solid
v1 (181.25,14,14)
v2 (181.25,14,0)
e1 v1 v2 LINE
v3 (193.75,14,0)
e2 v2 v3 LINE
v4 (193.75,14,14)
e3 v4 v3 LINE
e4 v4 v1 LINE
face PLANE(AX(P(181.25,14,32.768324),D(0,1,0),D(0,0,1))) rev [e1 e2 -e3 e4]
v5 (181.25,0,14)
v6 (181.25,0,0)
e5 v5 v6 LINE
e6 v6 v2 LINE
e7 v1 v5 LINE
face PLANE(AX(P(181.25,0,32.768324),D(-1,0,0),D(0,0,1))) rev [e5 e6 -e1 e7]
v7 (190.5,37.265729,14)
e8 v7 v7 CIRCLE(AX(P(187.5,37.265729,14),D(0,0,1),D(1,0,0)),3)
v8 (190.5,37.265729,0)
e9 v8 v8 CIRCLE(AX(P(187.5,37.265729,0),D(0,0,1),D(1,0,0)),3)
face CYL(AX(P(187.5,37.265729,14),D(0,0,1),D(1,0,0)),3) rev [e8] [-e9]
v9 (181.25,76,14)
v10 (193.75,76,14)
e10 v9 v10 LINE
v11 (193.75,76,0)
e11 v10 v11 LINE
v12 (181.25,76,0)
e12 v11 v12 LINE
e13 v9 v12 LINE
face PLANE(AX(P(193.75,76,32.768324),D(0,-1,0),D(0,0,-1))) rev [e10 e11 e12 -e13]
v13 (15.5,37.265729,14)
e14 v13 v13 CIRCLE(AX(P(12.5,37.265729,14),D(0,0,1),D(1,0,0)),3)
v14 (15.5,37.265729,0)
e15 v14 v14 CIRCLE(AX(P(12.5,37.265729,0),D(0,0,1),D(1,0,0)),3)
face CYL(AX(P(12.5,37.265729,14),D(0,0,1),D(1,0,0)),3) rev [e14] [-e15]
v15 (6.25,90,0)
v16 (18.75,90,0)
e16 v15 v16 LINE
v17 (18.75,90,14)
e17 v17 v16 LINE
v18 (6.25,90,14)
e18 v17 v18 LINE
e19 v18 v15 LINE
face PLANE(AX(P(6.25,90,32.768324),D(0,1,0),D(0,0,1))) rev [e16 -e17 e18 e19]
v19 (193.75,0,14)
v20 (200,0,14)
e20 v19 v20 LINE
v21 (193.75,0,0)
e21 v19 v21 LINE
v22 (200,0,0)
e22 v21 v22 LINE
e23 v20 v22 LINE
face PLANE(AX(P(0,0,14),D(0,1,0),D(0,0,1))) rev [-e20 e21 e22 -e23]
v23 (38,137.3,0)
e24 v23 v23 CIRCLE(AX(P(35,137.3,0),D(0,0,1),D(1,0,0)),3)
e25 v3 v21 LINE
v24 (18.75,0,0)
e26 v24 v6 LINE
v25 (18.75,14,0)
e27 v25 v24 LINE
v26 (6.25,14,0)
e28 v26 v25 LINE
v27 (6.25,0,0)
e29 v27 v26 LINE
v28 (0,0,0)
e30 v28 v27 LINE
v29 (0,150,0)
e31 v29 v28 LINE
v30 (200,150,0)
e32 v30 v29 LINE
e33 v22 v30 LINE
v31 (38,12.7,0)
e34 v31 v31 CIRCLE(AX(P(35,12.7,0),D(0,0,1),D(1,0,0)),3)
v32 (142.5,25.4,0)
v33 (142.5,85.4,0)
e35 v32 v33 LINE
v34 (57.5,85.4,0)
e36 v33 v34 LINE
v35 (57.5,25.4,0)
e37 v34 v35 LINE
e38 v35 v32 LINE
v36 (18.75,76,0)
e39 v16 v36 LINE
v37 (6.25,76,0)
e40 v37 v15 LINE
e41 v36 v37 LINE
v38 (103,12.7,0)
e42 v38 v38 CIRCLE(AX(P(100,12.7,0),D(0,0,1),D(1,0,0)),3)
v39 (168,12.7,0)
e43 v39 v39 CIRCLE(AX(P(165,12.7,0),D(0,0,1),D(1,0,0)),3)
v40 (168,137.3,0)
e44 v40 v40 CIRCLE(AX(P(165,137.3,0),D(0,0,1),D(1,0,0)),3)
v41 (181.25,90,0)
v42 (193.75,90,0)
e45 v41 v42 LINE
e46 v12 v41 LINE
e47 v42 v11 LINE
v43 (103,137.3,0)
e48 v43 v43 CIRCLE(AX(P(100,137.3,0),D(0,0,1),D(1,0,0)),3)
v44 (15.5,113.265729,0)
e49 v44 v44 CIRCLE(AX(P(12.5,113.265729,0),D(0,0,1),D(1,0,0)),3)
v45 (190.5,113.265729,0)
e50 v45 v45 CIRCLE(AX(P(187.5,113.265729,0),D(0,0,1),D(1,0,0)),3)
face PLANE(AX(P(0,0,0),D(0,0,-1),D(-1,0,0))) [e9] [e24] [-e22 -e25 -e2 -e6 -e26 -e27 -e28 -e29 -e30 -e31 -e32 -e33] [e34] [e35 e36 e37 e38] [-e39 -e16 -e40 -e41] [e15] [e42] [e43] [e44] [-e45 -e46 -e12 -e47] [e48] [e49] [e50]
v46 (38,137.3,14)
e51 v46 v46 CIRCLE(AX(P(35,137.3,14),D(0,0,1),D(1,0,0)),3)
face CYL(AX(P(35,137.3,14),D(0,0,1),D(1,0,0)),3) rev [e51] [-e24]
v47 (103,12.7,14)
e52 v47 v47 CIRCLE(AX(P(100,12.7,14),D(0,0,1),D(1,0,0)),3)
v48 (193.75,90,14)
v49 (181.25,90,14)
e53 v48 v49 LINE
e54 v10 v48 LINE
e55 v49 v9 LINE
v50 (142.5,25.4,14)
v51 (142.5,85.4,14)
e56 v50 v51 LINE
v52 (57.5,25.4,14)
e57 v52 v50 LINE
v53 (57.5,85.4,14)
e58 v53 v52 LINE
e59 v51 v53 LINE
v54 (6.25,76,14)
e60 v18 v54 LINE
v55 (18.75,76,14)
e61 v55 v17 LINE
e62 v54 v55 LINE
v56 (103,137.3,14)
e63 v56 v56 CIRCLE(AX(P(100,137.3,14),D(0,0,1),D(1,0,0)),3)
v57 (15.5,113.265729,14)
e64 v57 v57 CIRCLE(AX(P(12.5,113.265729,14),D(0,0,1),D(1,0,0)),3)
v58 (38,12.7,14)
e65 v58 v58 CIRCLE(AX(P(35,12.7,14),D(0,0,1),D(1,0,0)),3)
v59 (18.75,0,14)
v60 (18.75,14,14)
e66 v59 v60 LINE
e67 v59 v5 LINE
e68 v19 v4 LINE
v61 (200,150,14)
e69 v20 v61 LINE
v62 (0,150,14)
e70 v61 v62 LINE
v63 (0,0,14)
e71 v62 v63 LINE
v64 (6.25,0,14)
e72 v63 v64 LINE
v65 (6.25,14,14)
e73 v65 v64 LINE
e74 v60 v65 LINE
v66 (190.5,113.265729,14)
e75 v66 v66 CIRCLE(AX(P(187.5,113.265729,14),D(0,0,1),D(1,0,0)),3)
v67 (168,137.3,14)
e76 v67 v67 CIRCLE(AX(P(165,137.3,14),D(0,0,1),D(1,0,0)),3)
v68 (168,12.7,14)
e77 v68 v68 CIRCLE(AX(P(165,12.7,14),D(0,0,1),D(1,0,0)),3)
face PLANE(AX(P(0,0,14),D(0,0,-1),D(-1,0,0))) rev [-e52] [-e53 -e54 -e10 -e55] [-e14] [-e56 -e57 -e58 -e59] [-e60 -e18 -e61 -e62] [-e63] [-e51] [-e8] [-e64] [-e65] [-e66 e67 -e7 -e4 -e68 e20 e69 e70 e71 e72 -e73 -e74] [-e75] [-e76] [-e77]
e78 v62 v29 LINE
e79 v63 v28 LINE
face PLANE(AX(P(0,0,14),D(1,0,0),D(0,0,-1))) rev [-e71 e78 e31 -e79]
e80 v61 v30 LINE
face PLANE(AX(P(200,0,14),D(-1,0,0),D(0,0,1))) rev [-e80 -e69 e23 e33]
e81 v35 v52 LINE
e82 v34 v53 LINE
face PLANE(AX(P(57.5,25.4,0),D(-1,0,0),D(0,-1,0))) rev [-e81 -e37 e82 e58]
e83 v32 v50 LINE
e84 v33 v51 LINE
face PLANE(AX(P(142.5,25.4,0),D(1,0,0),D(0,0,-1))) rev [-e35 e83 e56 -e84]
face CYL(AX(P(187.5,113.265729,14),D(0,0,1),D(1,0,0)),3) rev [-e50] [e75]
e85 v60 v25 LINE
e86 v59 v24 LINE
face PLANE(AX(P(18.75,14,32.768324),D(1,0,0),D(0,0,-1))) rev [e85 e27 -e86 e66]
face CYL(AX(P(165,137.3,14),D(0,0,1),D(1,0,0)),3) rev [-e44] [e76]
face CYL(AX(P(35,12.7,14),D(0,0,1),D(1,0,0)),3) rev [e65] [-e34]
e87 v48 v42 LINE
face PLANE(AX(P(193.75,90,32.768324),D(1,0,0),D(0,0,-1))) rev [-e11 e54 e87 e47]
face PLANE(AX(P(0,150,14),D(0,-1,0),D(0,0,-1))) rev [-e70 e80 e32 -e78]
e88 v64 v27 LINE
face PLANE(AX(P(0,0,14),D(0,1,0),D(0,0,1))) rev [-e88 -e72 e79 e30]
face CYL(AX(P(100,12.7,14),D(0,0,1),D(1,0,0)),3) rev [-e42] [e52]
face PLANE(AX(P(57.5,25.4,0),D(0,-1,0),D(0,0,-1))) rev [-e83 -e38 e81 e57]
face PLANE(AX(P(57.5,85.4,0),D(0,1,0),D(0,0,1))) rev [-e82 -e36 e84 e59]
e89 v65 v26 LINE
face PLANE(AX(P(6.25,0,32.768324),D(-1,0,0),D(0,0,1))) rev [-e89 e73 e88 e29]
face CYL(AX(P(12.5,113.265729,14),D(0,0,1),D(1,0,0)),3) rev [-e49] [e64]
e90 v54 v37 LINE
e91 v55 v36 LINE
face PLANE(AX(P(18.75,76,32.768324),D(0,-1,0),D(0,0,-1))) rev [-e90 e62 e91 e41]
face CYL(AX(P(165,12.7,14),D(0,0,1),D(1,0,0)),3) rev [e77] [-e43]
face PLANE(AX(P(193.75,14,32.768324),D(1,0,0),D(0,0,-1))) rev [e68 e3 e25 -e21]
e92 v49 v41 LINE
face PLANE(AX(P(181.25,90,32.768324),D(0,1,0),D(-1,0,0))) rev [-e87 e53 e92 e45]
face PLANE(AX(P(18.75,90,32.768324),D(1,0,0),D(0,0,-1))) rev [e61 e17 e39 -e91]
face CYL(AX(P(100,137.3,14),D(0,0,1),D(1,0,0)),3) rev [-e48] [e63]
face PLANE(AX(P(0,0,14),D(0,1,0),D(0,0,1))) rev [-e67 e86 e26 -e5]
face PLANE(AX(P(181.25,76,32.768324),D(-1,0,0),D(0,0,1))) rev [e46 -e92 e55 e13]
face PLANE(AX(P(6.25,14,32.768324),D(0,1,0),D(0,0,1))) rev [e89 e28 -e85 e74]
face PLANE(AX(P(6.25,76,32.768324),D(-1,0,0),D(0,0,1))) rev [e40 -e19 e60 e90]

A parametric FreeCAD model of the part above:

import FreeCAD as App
import Part
import Sketcher
from FreeCAD import Vector

doc = App.newDocument("Part")
body = doc.addObject("PartDesign::Body", "Body")

# Sketch on XY plane
sketch1 = doc.addObject("Sketcher::SketchObject", "Sketch")
body.addObject(sketch1)
sketch1.AttachmentSupport = (doc.XY_Plane, [""])
sketch1.MapMode = "FlatFace"
sketch1.addGeometry(Part.LineSegment(Vector(0, 150, 0), Vector(0, 0, 0)), False)
sketch1.addGeometry(Part.LineSegment(Vector(0, 0, 0), Vector(200, 0, 0)), False)
sketch1.addGeometry(Part.LineSegment(Vector(200, 0, 0), Vector(200, 150, 0)), False)
sketch1.addGeometry(Part.LineSegment(Vector(200, 150, 0), Vector(0, 150, 0)), False)
sketch1.addConstraint(Sketcher.Constraint("Coincident", 0, 2, 1, 1))
sketch1.addConstraint(Sketcher.Constraint("Coincident", 1, 2, 2, 1))
sketch1.addConstraint(Sketcher.Constraint("Coincident", 2, 2, 3, 1))
sketch1.addConstraint(Sketcher.Constraint("Coincident", 3, 2, 0, 1))
sketch1.addConstraint(Sketcher.Constraint("Vertical", 0))
sketch1.addConstraint(Sketcher.Constraint("Horizontal", 1))
sketch1.addConstraint(Sketcher.Constraint("Vertical", 2))
sketch1.addConstraint(Sketcher.Constraint("Horizontal", 3))
sketch1.addConstraint(Sketcher.Constraint("Coincident", 0, 2, -1, 1))
sketch1.addConstraint(Sketcher.Constraint("DistanceX", 1, 1, 1, 2, 200.0))
sketch1.addConstraint(Sketcher.Constraint("DistanceY", 0, 2, 0, 1, 150.0))
pad1 = doc.addObject("PartDesign::Pad", "Pad")
body.addObject(pad1)
pad1.Profile = sketch1
pad1.Length = 14

# Sketch on XY plane
sketch2 = doc.addObject("Sketcher::SketchObject", "Sketch001")
body.addObject(sketch2)
sketch2.AttachmentSupport = (doc.XY_Plane, [""])
sketch2.MapMode = "FlatFace"
sketch2.addGeometry(Part.LineSegment(Vector(19, 14, 0), Vector(19, 0, 0)), False)
sketch2.addGeometry(Part.LineSegment(Vector(19, 0, 0), Vector(6, 0, 0)), False)
sketch2.addGeometry(Part.LineSegment(Vector(6, 0, 0), Vector(6, 14, 0)), False)
sketch2.addGeometry(Part.LineSegment(Vector(6, 14, 0), Vector(19, 14, 0)), False)
sketch2.addGeometry(Part.LineSegment(Vector(194, 14, 0), Vector(194, 0, 0)), False)
sketch2.addGeometry(Part.LineSegment(Vector(194, 0, 0), Vector(181, 0, 0)), False)
sketch2.addGeometry(Part.LineSegment(Vector(181, 0, 0), Vector(181, 14, 0)), False)
sketch2.addGeometry(Part.LineSegment(Vector(181, 14, 0), Vector(194, 14, 0)), False)
sketch2.addGeometry(Part.LineSegment(Vector(19, 90, 0), Vector(19, 76, 0)), False)
sketch2.addGeometry(Part.LineSegment(Vector(19, 76, 0), Vector(6, 76, 0)), False)
sketch2.addGeometry(Part.LineSegment(Vector(6, 76, 0), Vector(6, 90, 0)), False)
sketch2.addGeometry(Part.LineSegment(Vector(6, 90, 0), Vector(19, 90, 0)), False)
sketch2.addGeometry(Part.LineSegment(Vector(194, 90, 0), Vector(194, 76, 0)), False)
sketch2.addGeometry(Part.LineSegment(Vector(194, 76, 0), Vector(181, 76, 0)), False)
sketch2.addGeometry(Part.LineSegment(Vector(181, 76, 0), Vector(181, 90, 0)), False)
sketch2.addGeometry(Part.LineSegment(Vector(181, 90, 0), Vector(194, 90, 0)), False)
sketch2.addConstraint(Sketcher.Constraint("Coincident", 0, 2, 1, 1))
sketch2.addConstraint(Sketcher.Constraint("Coincident", 1, 2, 2, 1))
sketch2.addConstraint(Sketcher.Constraint("Coincident", 2, 2, 3, 1))
sketch2.addConstraint(Sketcher.Constraint("Coincident", 3, 2, 0, 1))
sketch2.addConstraint(Sketcher.Constraint("Coincident", 4, 2, 5, 1))
sketch2.addConstraint(Sketcher.Constraint("Coincident", 5, 2, 6, 1))
sketch2.addConstraint(Sketcher.Constraint("Coincident", 6, 2, 7, 1))
sketch2.addConstraint(Sketcher.Constraint("Coincident", 7, 2, 4, 1))
sketch2.addConstraint(Sketcher.Constraint("Coincident", 8, 2, 9, 1))
sketch2.addConstraint(Sketcher.Constraint("Coincident", 9, 2, 10, 1))
sketch2.addConstraint(Sketcher.Constraint("Coincident", 10, 2, 11, 1))
sketch2.addConstraint(Sketcher.Constraint("Coincident", 11, 2, 8, 1))
sketch2.addConstraint(Sketcher.Constraint("Coincident", 12, 2, 13, 1))
sketch2.addConstraint(Sketcher.Constraint("Coincident", 13, 2, 14, 1))
sketch2.addConstraint(Sketcher.Constraint("Coincident", 14, 2, 15, 1))
sketch2.addConstraint(Sketcher.Constraint("Coincident", 15, 2, 12, 1))
sketch2.addConstraint(Sketcher.Constraint("Vertical", 0))
sketch2.addConstraint(Sketcher.Constraint("Horizontal", 1))
sketch2.addConstraint(Sketcher.Constraint("Vertical", 2))
sketch2.addConstraint(Sketcher.Constraint("Horizontal", 3))
sketch2.addConstraint(Sketcher.Constraint("Vertical", 4))
sketch2.addConstraint(Sketcher.Constraint("Horizontal", 5))
sketch2.addConstraint(Sketcher.Constraint("Vertical", 6))
sketch2.addConstraint(Sketcher.Constraint("Horizontal", 7))
sketch2.addConstraint(Sketcher.Constraint("Vertical", 8))
sketch2.addConstraint(Sketcher.Constraint("Horizontal", 9))
sketch2.addConstraint(Sketcher.Constraint("Vertical", 10))
sketch2.addConstraint(Sketcher.Constraint("Horizontal", 11))
sketch2.addConstraint(Sketcher.Constraint("Vertical", 12))
sketch2.addConstraint(Sketcher.Constraint("Horizontal", 13))
sketch2.addConstraint(Sketcher.Constraint("Vertical", 14))
sketch2.addConstraint(Sketcher.Constraint("Horizontal", 15))
sketch2.addConstraint(Sketcher.Constraint("PointOnObject", 0, 2, -1))
sketch2.addConstraint(Sketcher.Constraint("PointOnObject", 4, 2, -1))
sketch2.addConstraint(Sketcher.Constraint("Horizontal", 3, 2, 6, 2))
sketch2.addConstraint(Sketcher.Constraint("Horizontal", 9, 2, 12, 2))
sketch2.addConstraint(Sketcher.Constraint("Horizontal", 11, 2, 14, 2))
sketch2.addConstraint(Sketcher.Constraint("Vertical", 3, 2, 8, 2))
sketch2.addConstraint(Sketcher.Constraint("Vertical", 2, 2, 9, 2))
sketch2.addConstraint(Sketcher.Constraint("Vertical", 7, 2, 12, 2))
sketch2.addConstraint(Sketcher.Constraint("Vertical", 6, 2, 13, 2))
sketch2.addConstraint(Sketcher.Constraint("Equal", 3, 5))
sketch2.addConstraint(Sketcher.Constraint("Equal", 6, 8))
sketch2.addConstraint(Sketcher.Constraint("DistanceY", 0, 2, 0, 1, 14.0))
sketch2.addConstraint(Sketcher.Constraint("DistanceX", 1, 2, 1, 1, 12.5))
sketch2.addConstraint(Sketcher.Constraint("DistanceY", -1, 1, 8, 2, 76.0))
sketch2.addConstraint(Sketcher.Constraint("DistanceX", 0, 2, 4, 2, 175.0))
sketch2.addConstraint(Sketcher.Constraint("DistanceX", -1, 1, 0, 2, 18.75))
pocket1 = doc.addObject("PartDesign::Pocket", "Pocket")
body.addObject(pocket1)
pocket1.Profile = sketch2
pocket1.Length = 14
pocket1.Reversed = True

# Sketch on XY plane
sketch3 = doc.addObject("Sketcher::SketchObject", "Sketch002")
body.addObject(sketch3)
sketch3.AttachmentSupport = (doc.XY_Plane, [""])
sketch3.MapMode = "FlatFace"
sketch3.AttachmentOffset = App.Placement(Vector(0, 0, 14), App.Rotation())
sketch3.addGeometry(Part.Circle(Vector(12.5, 113.3, 0), Vector(0, 0, 1), 3), False)
sketch3.addGeometry(Part.Circle(Vector(187.5, 113.3, 0), Vector(0, 0, 1), 3), False)
sketch3.addGeometry(Part.Circle(Vector(187.5, 37.3, 0), Vector(0, 0, 1), 3), False)
sketch3.addGeometry(Part.Circle(Vector(12.5, 37.3, 0), Vector(0, 0, 1), 3), False)
sketch3.addGeometry(Part.Circle(Vector(35, 137.3, 0), Vector(0, 0, 1), 3), False)
sketch3.addGeometry(Part.Circle(Vector(100, 137.3, 0), Vector(0, 0, 1), 3), False)
sketch3.addGeometry(Part.Circle(Vector(165, 137.3, 0), Vector(0, 0, 1), 3), False)
sketch3.addGeometry(Part.Circle(Vector(165, 12.7, 0), Vector(0, 0, 1), 3), False)
sketch3.addGeometry(Part.Circle(Vector(100, 12.7, 0), Vector(0, 0, 1), 3), False)
sketch3.addGeometry(Part.Circle(Vector(35, 12.7, 0), Vector(0, 0, 1), 3), False)
sketch3.addConstraint(Sketcher.Constraint("Equal", 0, 1))
sketch3.addConstraint(Sketcher.Constraint("Equal", 1, 2))
sketch3.addConstraint(Sketcher.Constraint("Equal", 2, 3))
sketch3.addConstraint(Sketcher.Constraint("Equal", 3, 4))
sketch3.addConstraint(Sketcher.Constraint("Equal", 4, 5))
sketch3.addConstraint(Sketcher.Constraint("Equal", 5, 6))
sketch3.addConstraint(Sketcher.Constraint("Equal", 6, 7))
sketch3.addConstraint(Sketcher.Constraint("Equal", 7, 8))
sketch3.addConstraint(Sketcher.Constraint("Equal", 8, 9))
sketch3.addConstraint(Sketcher.Constraint("Horizontal", 0, 3, 1, 3))
sketch3.addConstraint(Sketcher.Constraint("Horizontal", 2, 3, 3, 3))
sketch3.addConstraint(Sketcher.Constraint("Horizontal", 4, 3, 5, 3))
sketch3.addConstraint(Sketcher.Constraint("Horizontal", 5, 3, 6, 3))
sketch3.addConstraint(Sketcher.Constraint("Horizontal", 7, 3, 8, 3))
sketch3.addConstraint(Sketcher.Constraint("Horizontal", 8, 3, 9, 3))
sketch3.addConstraint(Sketcher.Constraint("Vertical", 1, 3, 2, 3))
sketch3.addConstraint(Sketcher.Constraint("Vertical", 0, 3, 3, 3))
sketch3.addConstraint(Sketcher.Constraint("Vertical", 6, 3, 7, 3))
sketch3.addConstraint(Sketcher.Constraint("Vertical", 5, 3, 8, 3))
sketch3.addConstraint(Sketcher.Constraint("Vertical", 4, 3, 9, 3))
sketch3.addConstraint(Sketcher.Constraint("Diameter", 0, 6.0))
sketch3.addConstraint(Sketcher.Constraint("DistanceX", -1, 1, 4, 3, 35.0))
sketch3.addConstraint(Sketcher.Constraint("DistanceX", -1, 1, 5, 3, 100.0))
sketch3.addConstraint(Sketcher.Constraint("DistanceX", -1, 1, 6, 3, 165.0))
sketch3.addConstraint(Sketcher.Constraint("DistanceX", 0, 3, 1, 3, 175.0))
sketch3.addConstraint(Sketcher.Constraint("DistanceY", 2, 3, 1, 3, 76.0))
sketch3.addConstraint(Sketcher.Constraint("DistanceX", -1, 1, 0, 3, 12.5))
sketch3.addConstraint(Sketcher.Constraint("DistanceY", -1, 1, 4, 3, 137.3))
sketch3.addConstraint(Sketcher.Constraint("DistanceY", -1, 1, 7, 3, 12.7))
sketch3.addConstraint(Sketcher.Constraint("DistanceY", -1, 1, 0, 3, 113.265729))
doc.recompute()
hole = doc.addObject("PartDesign::Hole", "Hole")
body.addObject(hole)
hole.Profile = sketch3
hole.ThreadType = "None"
hole.Diameter = 6
hole.DepthType = "ThroughAll"

# Sketch on XY plane
sketch4 = doc.addObject("Sketcher::SketchObject", "Sketch003")
body.addObject(sketch4)
sketch4.AttachmentSupport = (doc.XY_Plane, [""])
sketch4.MapMode = "FlatFace"
sketch4.AttachmentOffset = App.Placement(Vector(0, 0, 14), App.Rotation())
sketch4.addGeometry(Part.LineSegment(Vector(58, 85, 0), Vector(58, 25, 0)), False)
sketch4.addGeometry(Part.LineSegment(Vector(58, 25, 0), Vector(142, 25, 0)), False)
sketch4.addGeometry(Part.LineSegment(Vector(142, 25, 0), Vector(142, 85, 0)), False)
sketch4.addGeometry(Part.LineSegment(Vector(142, 85, 0), Vector(58, 85, 0)), False)
sketch4.addConstraint(Sketcher.Constraint("Coincident", 0, 2, 1, 1))
sketch4.addConstraint(Sketcher.Constraint("Coincident", 1, 2, 2, 1))
sketch4.addConstraint(Sketcher.Constraint("Coincident", 2, 2, 3, 1))
sketch4.addConstraint(Sketcher.Constraint("Coincident", 3, 2, 0, 1))
sketch4.addConstraint(Sketcher.Constraint("Vertical", 0))
sketch4.addConstraint(Sketcher.Constraint("Horizontal", 1))
sketch4.addConstraint(Sketcher.Constraint("Vertical", 2))
sketch4.addConstraint(Sketcher.Constraint("Horizontal", 3))
sketch4.addConstraint(Sketcher.Constraint("DistanceX", 1, 1, 1, 2, 85.0))
sketch4.addConstraint(Sketcher.Constraint("DistanceY", 0, 2, 0, 1, 60.0))
sketch4.addConstraint(Sketcher.Constraint("DistanceX", -1, 1, 0, 2, 57.5))
sketch4.addConstraint(Sketcher.Constraint("DistanceY", -1, 1, 0, 2, 25.4))
pocket2 = doc.addObject("PartDesign::Pocket", "Pocket001")
body.addObject(pocket2)
pocket2.Profile = sketch4
pocket2.Type = "ThroughAll"

doc.recompute()
